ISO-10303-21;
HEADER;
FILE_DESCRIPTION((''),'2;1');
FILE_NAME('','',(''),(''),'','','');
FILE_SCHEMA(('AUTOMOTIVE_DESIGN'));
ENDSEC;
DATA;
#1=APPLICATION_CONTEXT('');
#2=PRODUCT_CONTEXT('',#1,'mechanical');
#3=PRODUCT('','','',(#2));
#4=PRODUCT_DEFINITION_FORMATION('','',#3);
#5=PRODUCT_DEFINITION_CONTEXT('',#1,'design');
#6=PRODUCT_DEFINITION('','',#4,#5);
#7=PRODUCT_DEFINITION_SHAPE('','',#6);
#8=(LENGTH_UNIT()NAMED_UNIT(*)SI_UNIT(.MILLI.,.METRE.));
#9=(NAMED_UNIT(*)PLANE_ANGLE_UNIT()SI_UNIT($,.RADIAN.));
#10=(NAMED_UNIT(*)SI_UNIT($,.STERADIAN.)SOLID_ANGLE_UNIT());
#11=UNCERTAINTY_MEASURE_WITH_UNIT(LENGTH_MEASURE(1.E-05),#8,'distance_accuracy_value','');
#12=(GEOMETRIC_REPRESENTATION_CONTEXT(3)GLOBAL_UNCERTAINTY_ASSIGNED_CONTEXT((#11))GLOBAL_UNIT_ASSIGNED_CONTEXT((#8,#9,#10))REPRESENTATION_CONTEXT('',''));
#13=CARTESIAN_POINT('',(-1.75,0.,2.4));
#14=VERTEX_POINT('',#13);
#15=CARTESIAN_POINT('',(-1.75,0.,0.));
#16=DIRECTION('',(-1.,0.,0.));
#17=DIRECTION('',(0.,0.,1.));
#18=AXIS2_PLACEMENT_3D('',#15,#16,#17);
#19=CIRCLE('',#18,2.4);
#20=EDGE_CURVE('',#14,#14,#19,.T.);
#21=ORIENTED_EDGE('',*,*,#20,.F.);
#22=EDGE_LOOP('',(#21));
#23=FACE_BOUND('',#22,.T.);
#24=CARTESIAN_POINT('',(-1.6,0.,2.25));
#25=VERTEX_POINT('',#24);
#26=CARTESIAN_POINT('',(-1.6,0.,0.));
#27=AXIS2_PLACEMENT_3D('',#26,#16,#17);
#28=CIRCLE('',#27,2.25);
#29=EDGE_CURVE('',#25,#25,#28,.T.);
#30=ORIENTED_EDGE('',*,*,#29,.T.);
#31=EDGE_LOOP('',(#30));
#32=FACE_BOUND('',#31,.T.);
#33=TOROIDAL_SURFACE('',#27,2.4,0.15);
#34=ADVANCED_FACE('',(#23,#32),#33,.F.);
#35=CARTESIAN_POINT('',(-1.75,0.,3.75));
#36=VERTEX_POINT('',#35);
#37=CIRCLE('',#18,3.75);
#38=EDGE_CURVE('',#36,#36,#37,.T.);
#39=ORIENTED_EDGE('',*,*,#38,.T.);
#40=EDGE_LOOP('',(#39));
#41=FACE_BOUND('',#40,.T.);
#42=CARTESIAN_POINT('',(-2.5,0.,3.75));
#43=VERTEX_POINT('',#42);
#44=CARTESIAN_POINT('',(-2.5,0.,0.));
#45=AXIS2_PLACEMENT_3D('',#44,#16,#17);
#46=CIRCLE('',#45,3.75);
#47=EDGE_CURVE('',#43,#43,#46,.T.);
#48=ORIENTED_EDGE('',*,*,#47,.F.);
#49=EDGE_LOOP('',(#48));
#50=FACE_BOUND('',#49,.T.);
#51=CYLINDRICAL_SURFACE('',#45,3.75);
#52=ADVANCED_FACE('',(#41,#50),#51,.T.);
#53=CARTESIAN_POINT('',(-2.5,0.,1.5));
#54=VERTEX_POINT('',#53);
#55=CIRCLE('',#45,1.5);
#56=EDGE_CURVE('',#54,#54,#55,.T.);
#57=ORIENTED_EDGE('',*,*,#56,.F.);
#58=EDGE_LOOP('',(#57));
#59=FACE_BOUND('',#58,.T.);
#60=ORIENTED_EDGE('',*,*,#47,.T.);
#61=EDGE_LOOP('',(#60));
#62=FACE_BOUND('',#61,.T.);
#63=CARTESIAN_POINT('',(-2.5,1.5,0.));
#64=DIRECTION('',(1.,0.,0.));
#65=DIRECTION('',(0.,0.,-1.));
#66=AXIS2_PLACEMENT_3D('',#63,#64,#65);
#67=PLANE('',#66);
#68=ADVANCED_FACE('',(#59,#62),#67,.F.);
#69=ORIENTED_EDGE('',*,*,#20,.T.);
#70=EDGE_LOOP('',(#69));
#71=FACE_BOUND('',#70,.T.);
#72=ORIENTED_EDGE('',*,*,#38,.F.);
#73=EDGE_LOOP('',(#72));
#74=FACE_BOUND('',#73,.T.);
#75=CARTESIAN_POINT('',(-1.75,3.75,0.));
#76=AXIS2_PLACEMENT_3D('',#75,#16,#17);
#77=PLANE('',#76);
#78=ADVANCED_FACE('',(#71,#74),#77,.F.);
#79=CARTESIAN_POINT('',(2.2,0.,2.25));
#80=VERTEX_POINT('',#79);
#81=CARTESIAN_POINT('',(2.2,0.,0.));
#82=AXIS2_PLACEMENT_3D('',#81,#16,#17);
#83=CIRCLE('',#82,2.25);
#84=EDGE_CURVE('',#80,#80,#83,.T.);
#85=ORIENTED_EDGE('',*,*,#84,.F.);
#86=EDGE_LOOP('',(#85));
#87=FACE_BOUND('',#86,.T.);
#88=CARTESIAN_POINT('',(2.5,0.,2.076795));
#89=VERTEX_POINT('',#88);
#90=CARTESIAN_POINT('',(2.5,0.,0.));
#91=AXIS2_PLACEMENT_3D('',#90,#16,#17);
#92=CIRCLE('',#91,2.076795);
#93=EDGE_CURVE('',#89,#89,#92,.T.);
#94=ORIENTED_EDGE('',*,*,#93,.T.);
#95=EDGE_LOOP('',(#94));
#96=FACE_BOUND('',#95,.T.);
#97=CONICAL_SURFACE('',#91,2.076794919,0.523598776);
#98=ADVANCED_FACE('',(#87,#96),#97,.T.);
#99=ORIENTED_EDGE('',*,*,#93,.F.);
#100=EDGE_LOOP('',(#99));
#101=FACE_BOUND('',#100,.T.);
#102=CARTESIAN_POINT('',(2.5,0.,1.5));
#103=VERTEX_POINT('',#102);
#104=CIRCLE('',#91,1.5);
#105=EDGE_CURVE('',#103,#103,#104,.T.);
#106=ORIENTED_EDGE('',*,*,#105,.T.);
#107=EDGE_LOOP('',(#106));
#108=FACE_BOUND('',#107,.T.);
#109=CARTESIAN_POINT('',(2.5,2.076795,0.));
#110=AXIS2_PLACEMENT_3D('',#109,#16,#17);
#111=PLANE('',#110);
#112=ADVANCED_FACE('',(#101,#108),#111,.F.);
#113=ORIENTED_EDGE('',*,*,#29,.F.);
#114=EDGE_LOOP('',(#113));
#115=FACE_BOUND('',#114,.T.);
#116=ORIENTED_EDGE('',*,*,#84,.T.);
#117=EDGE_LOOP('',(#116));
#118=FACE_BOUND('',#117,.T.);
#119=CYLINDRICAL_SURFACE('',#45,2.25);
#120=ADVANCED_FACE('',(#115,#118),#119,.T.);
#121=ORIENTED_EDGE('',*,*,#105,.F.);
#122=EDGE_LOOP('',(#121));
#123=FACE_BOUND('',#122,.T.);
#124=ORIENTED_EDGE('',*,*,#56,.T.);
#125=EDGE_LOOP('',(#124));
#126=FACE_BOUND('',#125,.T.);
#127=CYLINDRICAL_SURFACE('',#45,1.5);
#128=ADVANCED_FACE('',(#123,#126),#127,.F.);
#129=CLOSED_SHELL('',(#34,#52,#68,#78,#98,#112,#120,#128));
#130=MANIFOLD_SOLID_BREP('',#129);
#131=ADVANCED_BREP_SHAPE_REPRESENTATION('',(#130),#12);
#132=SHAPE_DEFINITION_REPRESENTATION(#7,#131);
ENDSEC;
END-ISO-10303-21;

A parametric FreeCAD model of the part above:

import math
import FreeCAD as App
import Part
import Sketcher

V = App.Vector
Q = App.Units.Quantity

doc = App.newDocument("Part")
body = doc.addObject("PartDesign::Body", "Body")

sketch1 = body.newObject("Sketcher::SketchObject", "Sketch")
sketch1.AttachmentSupport = (doc.getObject("XY_Plane"), [""])
sketch1.MapMode = "FlatFace"
sketch1.addGeometry(Part.LineSegment(V(2.2, 2.25, 0), V(-1.6, 2.25, 0)), False)
sketch1.addGeometry(Part.ArcOfCircle(Part.Circle(V(-1.6, 2.4, 0), V(0, 0, 1), 0.15), math.radians(-180), math.radians(-90)), False)
sketch1.addGeometry(Part.LineSegment(V(-1.75, 2.4, 0), V(-1.75, 3.75, 0)), False)
sketch1.addGeometry(Part.LineSegment(V(-1.75, 3.75, 0), V(-2.5, 3.75, 0)), False)
sketch1.addGeometry(Part.LineSegment(V(-2.5, 3.75, 0), V(-2.5, 1.5, 0)), False)
sketch1.addGeometry(Part.LineSegment(V(-2.5, 1.5, 0), V(2.5, 1.5, 0)), False)
sketch1.addGeometry(Part.LineSegment(V(2.5, 1.5, 0), V(2.5, 2.08, 0)), False)
sketch1.addGeometry(Part.LineSegment(V(2.5, 2.08, 0), V(2.2, 2.25, 0)), False)
sketch1.addConstraint(Sketcher.Constraint("Tangent", 0, 2, 1, 2))
sketch1.addConstraint(Sketcher.Constraint("Tangent", 1, 1, 2, 1))
sketch1.addConstraint(Sketcher.Constraint("Coincident", 2, 2, 3, 1))
sketch1.addConstraint(Sketcher.Constraint("Coincident", 3, 2, 4, 1))
sketch1.addConstraint(Sketcher.Constraint("Coincident", 4, 2, 5, 1))
sketch1.addConstraint(Sketcher.Constraint("Coincident", 5, 2, 6, 1))
sketch1.addConstraint(Sketcher.Constraint("Coincident", 6, 2, 7, 1))
sketch1.addConstraint(Sketcher.Constraint("Coincident", 7, 2, 0, 1))
sketch1.addConstraint(Sketcher.Constraint("Horizontal", 0))
sketch1.addConstraint(Sketcher.Constraint("Vertical", 2))
sketch1.addConstraint(Sketcher.Constraint("Horizontal", 3))
sketch1.addConstraint(Sketcher.Constraint("Vertical", 4))
sketch1.addConstraint(Sketcher.Constraint("Horizontal", 5))
sketch1.addConstraint(Sketcher.Constraint("Vertical", 6))
sketch1.addConstraint(Sketcher.Constraint("DistanceX", 5, 1, 5, 2, Q("5 mm")))
sketch1.addConstraint(Sketcher.Constraint("Angle", 7, Q("150 deg")))
sketch1.addConstraint(Sketcher.Constraint("Radius", 1, Q("0.15 mm")))
sketch1.addConstraint(Sketcher.Constraint("DistanceX", 0, 2, 0, 1, Q("3.8 mm")))
sketch1.addConstraint(Sketcher.Constraint("DistanceX", 3, 2, 3, 1, Q("0.75 mm")))
sketch1.addConstraint(Sketcher.Constraint("DistanceY", 2, 1, 2, 2, Q("1.35 mm")))
sketch1.addConstraint(Sketcher.Constraint("DistanceY", 4, 2, 4, 1, Q("2.25 mm")))
sketch1.addConstraint(Sketcher.Constraint("DistanceX", 1, 3, -1, 1, Q("1.6 mm")))
sketch1.addConstraint(Sketcher.Constraint("DistanceY", -1, 1, 1, 3, Q("2.4 mm")))
revolution = body.newObject("PartDesign::Revolution", "Revolution")
revolution.Profile = sketch1
revolution.ReferenceAxis = (sketch1, ["H_Axis"])
revolution.Angle = 360

doc.recompute()
